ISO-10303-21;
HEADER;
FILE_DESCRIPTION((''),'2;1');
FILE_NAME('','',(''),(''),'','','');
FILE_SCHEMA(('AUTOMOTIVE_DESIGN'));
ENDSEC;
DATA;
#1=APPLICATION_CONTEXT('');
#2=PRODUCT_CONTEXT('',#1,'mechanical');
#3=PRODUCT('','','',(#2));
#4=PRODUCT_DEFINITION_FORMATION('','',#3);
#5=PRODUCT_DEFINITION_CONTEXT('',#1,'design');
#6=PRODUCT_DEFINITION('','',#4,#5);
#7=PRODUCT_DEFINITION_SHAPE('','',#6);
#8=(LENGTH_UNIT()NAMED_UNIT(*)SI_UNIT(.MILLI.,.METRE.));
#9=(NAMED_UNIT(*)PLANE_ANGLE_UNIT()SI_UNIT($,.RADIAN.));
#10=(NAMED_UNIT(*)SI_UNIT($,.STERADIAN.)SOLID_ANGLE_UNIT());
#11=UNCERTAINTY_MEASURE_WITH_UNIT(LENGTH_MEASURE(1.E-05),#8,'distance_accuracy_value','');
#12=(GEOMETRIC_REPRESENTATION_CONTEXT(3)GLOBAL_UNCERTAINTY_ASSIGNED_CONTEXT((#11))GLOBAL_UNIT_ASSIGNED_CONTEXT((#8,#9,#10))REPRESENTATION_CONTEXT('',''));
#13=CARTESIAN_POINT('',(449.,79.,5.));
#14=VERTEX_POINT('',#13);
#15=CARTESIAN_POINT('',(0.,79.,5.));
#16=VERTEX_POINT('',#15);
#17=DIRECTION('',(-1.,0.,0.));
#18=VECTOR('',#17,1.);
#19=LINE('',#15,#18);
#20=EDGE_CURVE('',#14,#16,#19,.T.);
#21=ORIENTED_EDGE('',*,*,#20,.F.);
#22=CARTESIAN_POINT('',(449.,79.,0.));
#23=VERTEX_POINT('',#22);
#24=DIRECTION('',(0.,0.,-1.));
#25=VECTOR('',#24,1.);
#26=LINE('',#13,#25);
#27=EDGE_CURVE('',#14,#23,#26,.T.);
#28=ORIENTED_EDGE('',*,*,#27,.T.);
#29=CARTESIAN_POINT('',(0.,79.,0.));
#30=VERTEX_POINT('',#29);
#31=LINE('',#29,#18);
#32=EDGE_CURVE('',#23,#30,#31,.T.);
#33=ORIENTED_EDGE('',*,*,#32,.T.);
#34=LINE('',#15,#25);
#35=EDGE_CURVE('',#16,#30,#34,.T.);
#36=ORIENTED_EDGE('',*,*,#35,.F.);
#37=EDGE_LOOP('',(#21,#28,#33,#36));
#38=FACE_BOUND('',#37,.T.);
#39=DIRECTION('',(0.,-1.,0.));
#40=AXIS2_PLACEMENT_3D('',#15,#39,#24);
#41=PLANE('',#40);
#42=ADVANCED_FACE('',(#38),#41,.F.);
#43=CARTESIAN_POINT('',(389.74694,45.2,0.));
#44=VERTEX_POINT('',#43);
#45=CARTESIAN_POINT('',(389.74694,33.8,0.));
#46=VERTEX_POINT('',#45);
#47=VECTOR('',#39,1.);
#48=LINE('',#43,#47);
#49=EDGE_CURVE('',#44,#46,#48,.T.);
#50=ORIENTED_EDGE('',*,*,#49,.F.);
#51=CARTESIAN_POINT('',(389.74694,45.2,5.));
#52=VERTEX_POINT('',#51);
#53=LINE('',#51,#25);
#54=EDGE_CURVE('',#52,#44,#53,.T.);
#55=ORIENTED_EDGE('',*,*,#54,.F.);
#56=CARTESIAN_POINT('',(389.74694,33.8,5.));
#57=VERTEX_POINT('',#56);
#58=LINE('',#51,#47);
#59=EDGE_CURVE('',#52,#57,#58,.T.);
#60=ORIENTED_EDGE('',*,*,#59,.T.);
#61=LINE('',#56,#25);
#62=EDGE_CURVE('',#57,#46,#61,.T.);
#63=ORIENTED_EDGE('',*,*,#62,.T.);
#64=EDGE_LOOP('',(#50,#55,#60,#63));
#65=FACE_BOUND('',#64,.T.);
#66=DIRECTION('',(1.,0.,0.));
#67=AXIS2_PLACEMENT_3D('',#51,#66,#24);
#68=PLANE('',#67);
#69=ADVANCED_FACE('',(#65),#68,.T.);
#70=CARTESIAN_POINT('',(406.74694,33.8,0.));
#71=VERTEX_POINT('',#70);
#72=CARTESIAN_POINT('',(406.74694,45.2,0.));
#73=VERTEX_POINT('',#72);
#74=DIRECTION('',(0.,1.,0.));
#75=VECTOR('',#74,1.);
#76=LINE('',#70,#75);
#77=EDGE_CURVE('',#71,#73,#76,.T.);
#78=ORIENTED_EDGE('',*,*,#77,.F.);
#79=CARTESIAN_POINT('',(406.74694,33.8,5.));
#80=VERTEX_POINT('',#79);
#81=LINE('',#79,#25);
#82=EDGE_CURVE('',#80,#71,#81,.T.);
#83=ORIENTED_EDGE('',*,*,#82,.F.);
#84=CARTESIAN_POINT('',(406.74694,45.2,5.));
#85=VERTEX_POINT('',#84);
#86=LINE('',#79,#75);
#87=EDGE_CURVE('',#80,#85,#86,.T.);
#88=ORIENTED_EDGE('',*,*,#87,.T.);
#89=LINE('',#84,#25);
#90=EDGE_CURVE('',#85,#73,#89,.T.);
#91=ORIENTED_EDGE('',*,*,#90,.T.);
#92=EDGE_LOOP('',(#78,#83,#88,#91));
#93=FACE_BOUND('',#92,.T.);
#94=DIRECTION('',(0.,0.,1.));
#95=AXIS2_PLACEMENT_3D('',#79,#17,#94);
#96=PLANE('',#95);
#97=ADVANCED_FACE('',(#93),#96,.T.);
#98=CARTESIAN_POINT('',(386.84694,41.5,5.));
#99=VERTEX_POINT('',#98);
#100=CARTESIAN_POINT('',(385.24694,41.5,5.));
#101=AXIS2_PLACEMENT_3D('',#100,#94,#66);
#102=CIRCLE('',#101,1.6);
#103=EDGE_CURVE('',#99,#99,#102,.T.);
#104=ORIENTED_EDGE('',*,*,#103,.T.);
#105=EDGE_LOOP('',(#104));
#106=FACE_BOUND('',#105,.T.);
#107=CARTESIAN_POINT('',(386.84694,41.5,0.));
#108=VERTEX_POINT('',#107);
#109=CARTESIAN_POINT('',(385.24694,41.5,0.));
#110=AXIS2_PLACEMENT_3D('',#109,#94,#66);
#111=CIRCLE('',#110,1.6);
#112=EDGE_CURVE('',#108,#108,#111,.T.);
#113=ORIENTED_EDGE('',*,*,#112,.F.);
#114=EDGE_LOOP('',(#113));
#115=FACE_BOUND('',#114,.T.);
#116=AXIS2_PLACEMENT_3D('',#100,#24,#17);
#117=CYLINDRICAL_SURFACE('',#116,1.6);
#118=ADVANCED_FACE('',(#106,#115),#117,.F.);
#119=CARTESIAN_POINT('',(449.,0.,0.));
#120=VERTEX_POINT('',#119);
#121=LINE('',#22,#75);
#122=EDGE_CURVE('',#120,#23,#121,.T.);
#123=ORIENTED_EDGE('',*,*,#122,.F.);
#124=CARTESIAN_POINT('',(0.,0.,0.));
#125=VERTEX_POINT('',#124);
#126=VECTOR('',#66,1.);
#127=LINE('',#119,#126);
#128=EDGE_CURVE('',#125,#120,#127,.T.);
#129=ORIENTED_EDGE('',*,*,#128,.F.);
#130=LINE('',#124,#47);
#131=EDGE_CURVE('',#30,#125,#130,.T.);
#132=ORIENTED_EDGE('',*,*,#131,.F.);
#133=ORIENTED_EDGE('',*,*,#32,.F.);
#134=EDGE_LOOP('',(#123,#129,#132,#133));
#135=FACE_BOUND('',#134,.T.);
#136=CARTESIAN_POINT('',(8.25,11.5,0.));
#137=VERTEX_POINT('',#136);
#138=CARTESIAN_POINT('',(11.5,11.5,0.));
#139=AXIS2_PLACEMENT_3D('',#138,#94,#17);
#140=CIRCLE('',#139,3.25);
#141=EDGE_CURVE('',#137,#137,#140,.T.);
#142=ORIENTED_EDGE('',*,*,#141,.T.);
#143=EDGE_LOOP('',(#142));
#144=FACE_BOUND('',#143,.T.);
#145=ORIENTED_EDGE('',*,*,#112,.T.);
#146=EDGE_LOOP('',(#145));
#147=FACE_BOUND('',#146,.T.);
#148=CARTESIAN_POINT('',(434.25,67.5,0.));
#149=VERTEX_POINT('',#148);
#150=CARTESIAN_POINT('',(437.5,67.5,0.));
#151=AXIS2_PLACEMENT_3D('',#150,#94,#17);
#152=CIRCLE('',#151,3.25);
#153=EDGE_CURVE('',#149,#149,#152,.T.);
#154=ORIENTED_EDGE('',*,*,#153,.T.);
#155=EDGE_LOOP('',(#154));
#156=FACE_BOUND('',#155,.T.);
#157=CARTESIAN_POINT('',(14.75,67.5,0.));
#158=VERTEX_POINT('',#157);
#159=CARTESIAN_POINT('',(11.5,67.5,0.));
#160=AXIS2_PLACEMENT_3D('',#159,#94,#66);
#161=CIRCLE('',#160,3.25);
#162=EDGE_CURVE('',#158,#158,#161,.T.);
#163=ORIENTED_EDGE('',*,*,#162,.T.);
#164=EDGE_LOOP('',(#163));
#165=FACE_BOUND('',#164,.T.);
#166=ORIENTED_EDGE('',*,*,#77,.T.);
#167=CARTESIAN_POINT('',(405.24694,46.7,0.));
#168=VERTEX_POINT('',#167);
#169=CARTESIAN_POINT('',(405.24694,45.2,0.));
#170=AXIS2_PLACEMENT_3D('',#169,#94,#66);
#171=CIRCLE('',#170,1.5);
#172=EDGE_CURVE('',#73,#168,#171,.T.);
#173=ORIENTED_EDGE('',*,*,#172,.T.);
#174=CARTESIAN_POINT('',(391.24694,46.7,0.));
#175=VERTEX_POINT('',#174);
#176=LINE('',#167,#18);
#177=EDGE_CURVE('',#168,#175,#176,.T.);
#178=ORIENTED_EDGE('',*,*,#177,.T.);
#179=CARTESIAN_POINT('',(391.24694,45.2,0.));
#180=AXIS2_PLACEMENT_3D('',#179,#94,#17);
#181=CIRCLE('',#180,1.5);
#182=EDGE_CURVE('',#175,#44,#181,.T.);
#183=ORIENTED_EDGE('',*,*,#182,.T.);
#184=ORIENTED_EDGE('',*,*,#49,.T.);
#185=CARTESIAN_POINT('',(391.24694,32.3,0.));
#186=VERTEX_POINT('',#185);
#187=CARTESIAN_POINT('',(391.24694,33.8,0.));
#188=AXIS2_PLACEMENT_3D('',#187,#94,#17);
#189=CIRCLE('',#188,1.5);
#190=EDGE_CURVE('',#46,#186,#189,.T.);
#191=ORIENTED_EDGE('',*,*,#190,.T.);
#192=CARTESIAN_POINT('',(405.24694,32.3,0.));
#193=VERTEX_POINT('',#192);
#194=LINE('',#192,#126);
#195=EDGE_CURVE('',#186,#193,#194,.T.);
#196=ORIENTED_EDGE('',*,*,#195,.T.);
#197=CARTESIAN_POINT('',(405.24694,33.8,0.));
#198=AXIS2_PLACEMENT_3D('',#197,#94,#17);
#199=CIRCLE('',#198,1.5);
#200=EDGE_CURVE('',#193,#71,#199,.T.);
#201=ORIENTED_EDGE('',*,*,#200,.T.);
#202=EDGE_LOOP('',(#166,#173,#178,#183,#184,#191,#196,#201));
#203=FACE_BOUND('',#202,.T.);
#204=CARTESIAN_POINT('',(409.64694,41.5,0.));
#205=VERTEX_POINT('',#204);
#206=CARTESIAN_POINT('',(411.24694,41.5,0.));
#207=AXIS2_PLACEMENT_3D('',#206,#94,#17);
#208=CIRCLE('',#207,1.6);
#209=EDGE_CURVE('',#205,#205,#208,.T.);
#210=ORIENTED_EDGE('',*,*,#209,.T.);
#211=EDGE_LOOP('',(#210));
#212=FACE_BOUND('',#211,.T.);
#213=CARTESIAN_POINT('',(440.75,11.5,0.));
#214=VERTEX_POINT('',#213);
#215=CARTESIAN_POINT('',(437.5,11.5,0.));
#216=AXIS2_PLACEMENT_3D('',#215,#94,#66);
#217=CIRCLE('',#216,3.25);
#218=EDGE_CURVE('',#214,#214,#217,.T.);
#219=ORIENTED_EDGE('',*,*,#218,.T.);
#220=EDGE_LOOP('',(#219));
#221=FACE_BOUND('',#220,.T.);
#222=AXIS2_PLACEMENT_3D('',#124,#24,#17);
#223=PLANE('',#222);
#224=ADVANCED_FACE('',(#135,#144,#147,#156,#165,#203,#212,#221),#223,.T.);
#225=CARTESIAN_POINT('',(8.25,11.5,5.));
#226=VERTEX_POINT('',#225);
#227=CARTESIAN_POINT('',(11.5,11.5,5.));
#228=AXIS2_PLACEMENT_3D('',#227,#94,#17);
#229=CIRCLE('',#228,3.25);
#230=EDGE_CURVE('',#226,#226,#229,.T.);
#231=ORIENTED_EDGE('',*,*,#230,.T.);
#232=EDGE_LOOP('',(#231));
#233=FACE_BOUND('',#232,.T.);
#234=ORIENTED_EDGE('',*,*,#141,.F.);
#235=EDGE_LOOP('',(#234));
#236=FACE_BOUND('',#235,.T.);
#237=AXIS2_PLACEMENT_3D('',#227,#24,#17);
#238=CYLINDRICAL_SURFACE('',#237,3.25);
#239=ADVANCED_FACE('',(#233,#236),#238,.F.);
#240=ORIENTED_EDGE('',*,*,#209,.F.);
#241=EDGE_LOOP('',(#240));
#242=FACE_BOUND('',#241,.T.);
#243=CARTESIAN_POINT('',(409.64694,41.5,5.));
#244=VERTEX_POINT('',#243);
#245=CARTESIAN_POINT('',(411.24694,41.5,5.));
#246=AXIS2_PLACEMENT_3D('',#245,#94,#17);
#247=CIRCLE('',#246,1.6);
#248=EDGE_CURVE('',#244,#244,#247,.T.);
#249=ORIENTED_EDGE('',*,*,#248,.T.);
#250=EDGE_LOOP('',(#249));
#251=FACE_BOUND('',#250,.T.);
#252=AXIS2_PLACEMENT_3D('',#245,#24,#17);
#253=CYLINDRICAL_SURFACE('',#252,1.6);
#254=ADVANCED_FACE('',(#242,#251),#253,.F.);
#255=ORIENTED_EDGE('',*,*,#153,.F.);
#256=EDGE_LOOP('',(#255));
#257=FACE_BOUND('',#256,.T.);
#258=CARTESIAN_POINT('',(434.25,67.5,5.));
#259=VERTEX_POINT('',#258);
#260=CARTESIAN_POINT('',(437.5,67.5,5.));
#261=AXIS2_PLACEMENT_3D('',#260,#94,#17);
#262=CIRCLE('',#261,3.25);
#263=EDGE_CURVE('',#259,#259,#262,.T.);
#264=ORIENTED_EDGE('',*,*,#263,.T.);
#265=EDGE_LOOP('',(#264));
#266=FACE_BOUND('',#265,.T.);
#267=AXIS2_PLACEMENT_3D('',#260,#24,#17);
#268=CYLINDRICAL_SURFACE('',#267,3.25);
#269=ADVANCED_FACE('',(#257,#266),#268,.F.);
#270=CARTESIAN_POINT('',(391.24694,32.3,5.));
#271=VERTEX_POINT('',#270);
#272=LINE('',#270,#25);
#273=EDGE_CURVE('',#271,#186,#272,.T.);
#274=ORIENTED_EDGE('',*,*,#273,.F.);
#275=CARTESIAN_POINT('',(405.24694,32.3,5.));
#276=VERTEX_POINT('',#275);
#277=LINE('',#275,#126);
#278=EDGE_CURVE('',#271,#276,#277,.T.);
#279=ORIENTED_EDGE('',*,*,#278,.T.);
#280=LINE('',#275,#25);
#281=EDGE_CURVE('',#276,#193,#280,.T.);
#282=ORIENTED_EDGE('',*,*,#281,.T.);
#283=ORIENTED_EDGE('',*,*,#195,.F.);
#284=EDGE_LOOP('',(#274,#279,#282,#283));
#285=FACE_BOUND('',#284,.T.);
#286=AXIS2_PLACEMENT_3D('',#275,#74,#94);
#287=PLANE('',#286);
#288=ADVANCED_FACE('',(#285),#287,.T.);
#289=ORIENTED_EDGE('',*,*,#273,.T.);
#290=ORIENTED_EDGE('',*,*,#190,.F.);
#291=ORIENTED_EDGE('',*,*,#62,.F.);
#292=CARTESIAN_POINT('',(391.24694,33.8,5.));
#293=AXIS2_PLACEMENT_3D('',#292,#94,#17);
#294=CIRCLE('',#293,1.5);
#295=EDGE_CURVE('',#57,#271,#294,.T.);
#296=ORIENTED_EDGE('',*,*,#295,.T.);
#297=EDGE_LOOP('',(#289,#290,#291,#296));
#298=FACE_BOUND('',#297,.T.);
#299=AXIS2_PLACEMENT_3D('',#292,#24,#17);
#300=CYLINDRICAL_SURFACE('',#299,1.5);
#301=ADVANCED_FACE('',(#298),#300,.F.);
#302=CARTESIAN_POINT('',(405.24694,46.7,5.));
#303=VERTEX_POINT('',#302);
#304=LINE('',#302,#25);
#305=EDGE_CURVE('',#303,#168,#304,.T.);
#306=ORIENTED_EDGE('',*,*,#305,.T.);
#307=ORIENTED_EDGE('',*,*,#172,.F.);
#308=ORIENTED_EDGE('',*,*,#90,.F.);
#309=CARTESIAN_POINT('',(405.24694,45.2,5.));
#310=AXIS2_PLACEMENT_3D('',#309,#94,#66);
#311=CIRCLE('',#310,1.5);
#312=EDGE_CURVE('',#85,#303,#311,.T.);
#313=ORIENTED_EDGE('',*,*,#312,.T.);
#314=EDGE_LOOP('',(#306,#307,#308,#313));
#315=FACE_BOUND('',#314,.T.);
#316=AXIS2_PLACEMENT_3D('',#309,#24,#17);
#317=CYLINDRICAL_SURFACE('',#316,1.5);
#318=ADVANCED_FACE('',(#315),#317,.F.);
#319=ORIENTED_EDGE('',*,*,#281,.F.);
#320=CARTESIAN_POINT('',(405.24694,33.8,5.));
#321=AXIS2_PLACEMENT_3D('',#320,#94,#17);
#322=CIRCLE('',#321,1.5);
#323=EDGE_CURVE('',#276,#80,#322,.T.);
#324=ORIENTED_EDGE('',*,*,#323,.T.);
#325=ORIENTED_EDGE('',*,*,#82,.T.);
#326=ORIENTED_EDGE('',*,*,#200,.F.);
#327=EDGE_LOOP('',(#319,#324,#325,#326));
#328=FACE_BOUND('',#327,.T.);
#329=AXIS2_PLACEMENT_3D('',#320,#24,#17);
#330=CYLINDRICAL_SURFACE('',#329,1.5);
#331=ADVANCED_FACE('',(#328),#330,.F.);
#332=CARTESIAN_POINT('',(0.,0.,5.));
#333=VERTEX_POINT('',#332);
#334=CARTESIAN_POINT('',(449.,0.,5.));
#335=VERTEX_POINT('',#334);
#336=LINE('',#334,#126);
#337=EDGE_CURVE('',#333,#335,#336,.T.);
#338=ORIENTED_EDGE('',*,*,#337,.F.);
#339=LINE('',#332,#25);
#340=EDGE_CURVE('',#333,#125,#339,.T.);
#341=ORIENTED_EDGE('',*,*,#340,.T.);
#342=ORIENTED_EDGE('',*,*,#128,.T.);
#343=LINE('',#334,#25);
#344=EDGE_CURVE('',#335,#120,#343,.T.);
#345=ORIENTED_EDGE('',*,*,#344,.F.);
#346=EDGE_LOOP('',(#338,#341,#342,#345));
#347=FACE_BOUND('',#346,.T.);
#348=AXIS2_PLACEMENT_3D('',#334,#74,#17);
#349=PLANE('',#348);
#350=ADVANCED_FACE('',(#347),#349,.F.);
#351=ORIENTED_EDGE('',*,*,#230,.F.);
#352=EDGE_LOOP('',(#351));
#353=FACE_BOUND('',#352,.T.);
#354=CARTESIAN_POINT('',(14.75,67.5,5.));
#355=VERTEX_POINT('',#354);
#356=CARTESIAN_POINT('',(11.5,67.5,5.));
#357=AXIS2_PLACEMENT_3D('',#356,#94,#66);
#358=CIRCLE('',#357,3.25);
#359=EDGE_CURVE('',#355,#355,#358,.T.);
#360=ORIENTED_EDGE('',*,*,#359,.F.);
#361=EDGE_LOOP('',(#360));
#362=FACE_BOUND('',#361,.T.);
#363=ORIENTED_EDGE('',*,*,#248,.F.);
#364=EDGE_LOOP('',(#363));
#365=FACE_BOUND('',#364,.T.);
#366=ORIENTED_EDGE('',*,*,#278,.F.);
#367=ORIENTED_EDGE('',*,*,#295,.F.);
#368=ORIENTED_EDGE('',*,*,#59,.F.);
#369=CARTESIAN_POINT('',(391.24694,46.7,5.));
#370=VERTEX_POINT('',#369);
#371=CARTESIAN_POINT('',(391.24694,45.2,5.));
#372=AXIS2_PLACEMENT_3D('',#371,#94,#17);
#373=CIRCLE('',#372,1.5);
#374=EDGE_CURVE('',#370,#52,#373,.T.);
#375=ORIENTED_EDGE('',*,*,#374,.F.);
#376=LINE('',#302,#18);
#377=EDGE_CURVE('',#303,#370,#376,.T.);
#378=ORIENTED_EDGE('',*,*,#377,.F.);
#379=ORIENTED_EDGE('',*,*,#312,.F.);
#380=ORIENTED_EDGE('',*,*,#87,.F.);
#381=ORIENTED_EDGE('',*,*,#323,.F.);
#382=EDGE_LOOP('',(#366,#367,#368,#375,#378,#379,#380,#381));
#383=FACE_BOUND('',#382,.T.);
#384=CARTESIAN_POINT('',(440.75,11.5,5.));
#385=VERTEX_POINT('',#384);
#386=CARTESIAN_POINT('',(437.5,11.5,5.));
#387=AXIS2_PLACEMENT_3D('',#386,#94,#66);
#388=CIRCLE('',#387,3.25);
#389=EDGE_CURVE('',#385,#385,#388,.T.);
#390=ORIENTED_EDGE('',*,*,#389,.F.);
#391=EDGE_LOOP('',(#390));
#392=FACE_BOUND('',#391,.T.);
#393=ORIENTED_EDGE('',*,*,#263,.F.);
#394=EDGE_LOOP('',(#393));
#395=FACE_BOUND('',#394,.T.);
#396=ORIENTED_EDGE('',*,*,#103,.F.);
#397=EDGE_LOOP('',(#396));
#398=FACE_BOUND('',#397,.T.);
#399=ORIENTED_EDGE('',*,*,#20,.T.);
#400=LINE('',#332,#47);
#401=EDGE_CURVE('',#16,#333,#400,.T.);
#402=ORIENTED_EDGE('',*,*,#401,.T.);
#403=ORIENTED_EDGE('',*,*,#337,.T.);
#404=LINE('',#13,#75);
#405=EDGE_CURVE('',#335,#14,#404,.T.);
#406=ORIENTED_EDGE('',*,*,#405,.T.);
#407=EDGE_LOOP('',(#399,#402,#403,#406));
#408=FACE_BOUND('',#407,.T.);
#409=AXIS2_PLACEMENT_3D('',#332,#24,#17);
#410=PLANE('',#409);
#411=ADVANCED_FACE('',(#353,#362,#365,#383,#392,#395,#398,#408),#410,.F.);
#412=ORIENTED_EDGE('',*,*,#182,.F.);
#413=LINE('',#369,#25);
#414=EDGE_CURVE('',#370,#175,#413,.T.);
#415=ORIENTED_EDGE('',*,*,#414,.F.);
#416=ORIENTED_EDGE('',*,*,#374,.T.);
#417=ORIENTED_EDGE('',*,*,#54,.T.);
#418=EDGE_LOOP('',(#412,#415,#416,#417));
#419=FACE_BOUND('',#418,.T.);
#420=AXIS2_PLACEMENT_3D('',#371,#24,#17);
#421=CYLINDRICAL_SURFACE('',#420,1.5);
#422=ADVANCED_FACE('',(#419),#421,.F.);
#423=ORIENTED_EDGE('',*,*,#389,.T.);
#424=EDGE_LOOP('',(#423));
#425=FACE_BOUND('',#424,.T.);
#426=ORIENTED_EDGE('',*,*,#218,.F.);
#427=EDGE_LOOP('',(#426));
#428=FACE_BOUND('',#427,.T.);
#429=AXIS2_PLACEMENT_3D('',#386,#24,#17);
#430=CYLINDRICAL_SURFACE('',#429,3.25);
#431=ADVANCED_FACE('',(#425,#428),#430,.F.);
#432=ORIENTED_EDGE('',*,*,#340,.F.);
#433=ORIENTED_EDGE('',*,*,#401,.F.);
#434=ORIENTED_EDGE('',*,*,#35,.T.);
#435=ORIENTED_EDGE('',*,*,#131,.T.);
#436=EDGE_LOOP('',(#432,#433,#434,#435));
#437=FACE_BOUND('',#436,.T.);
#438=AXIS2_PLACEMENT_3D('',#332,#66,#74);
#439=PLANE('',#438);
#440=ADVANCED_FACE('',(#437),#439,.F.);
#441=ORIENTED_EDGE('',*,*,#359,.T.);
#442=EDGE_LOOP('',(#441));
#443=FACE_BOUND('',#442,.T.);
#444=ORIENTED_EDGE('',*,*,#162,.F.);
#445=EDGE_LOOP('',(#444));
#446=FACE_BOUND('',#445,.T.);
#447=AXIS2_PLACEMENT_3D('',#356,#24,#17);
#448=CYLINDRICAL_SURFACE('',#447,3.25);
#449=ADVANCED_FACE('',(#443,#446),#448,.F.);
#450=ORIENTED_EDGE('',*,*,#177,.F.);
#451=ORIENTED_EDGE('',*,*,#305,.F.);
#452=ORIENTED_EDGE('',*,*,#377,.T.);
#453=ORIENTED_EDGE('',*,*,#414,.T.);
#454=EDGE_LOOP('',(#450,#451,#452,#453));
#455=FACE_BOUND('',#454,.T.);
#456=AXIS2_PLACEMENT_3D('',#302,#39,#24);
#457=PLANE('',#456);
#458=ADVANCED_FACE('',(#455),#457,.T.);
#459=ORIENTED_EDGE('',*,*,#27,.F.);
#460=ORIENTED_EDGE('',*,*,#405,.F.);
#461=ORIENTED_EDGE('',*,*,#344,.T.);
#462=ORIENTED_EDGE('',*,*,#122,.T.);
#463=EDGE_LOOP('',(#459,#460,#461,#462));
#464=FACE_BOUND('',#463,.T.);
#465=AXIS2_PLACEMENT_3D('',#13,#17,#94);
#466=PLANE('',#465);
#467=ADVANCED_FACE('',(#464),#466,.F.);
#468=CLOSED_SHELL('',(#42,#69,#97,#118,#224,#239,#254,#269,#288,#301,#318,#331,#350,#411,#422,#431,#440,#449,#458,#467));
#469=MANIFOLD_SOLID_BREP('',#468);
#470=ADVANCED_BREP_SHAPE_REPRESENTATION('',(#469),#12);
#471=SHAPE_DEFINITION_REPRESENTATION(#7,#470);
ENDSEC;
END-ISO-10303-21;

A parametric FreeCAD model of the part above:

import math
import FreeCAD as App
import Part
import Sketcher
from FreeCAD import Vector
Q = App.Units.Quantity


def add_polygon(sketch, points):
    """Adds a closed chain of lines whose ends are joined by coincident constraints."""
    first, n = sketch.GeometryCount, len(points)
    for a, b in zip(points, points[1:] + points[:1]):
        sketch.addGeometry(Part.LineSegment(App.Vector(*a, 0), App.Vector(*b, 0)), False)
    for i in range(n):
        sketch.addConstraint(Sketcher.Constraint("Coincident", first + i, 2, first + (i + 1) % n, 1))

doc = App.newDocument("Part")
body = doc.addObject("PartDesign::Body", "Body")

# Sketch on XY plane
sketch1 = doc.addObject("Sketcher::SketchObject", "Sketch")
body.addObject(sketch1)
sketch1.AttachmentSupport = (doc.XY_Plane, [""])
sketch1.MapMode = "FlatFace"
add_polygon(sketch1, [(0, 79), (0, 0), (449, 0), (449, 79)])  # lines 0-3
sketch1.addGeometry(Part.Circle(Vector(11.5, 11.5, 0), Vector(0, 0, 1), 3.2), False)  # 4
sketch1.addGeometry(Part.Circle(Vector(437.5, 11.5, 0), Vector(0, 0, 1), 3.2), False)  # 5
sketch1.addGeometry(Part.Circle(Vector(11.5, 67.5, 0), Vector(0, 0, 1), 3.2), False)  # 6
sketch1.addGeometry(Part.Circle(Vector(385.2, 41.5, 0), Vector(0, 0, 1), 1.6), False)  # 7
sketch1.addGeometry(Part.LineSegment(Vector(406.7, 45.2, 0), Vector(406.7, 33.8, 0)), False)  # 8
sketch1.addGeometry(Part.ArcOfCircle(Part.Circle(Vector(405.2, 33.8, 0), Vector(0, 0, 1), 1.5), math.radians(-90), math.radians(0)), False)  # 9
sketch1.addGeometry(Part.LineSegment(Vector(405.2, 32.3, 0), Vector(391.2, 32.3, 0)), False)  # 10
sketch1.addGeometry(Part.ArcOfCircle(Part.Circle(Vector(391.2, 33.8, 0), Vector(0, 0, 1), 1.5), math.radians(180), math.radians(270)), False)  # 11
sketch1.addGeometry(Part.LineSegment(Vector(389.7, 33.8, 0), Vector(389.7, 45.2, 0)), False)  # 12
sketch1.addGeometry(Part.ArcOfCircle(Part.Circle(Vector(391.2, 45.2, 0), Vector(0, 0, 1), 1.5), math.radians(90), math.radians(180)), False)  # 13
sketch1.addGeometry(Part.LineSegment(Vector(391.2, 46.7, 0), Vector(405.2, 46.7, 0)), False)  # 14
sketch1.addGeometry(Part.ArcOfCircle(Part.Circle(Vector(405.2, 45.2, 0), Vector(0, 0, 1), 1.5), math.radians(0), math.radians(90)), False)  # 15
sketch1.addGeometry(Part.Circle(Vector(411.2, 41.5, 0), Vector(0, 0, 1), 1.6), False)  # 16
sketch1.addGeometry(Part.Circle(Vector(437.5, 67.5, 0), Vector(0, 0, 1), 3.2), False)  # 17
sketch1.addConstraint([
    Sketcher.Constraint("Tangent", 8, 2, 9, 2),
    Sketcher.Constraint("Tangent", 9, 1, 10, 1),
    Sketcher.Constraint("Tangent", 10, 2, 11, 2),
    Sketcher.Constraint("Tangent", 11, 1, 12, 1),
    Sketcher.Constraint("Tangent", 12, 2, 13, 2),
    Sketcher.Constraint("Tangent", 13, 1, 14, 1),
    Sketcher.Constraint("Tangent", 14, 2, 15, 2),
    Sketcher.Constraint("Tangent", 15, 1, 8, 1),
    Sketcher.Constraint("Vertical", 0),
    Sketcher.Constraint("Horizontal", 1),
    Sketcher.Constraint("Vertical", 2),
    Sketcher.Constraint("Horizontal", 3),
    Sketcher.Constraint("Vertical", 8),
    Sketcher.Constraint("Horizontal", 10),
    Sketcher.Constraint("Vertical", 12),
    Sketcher.Constraint("Horizontal", 14),
    Sketcher.Constraint("Coincident", 0, 2, -1, 1),
    Sketcher.Constraint("Equal", 4, 5),
    Sketcher.Constraint("Equal", 5, 6),
    Sketcher.Constraint("Equal", 9, 11),
    Sketcher.Constraint("Equal", 11, 13),
    Sketcher.Constraint("Equal", 13, 15),
    Sketcher.Constraint("Equal", 7, 16),
    Sketcher.Constraint("Equal", 6, 17),
    Sketcher.Constraint("Horizontal", 4, 3, 5, 3),
    Sketcher.Constraint("Horizontal", 7, 3, 16, 3),
    Sketcher.Constraint("Horizontal", 6, 3, 17, 3),
    Sketcher.Constraint("Vertical", 4, 3, 6, 3),
    Sketcher.Constraint("Vertical", 5, 3, 17, 3),
    Sketcher.Constraint("Diameter", 4, Q("6.5 mm")),
    Sketcher.Constraint("Diameter", 7, Q("3.2 mm")),
    Sketcher.Constraint("Radius", 9, Q("1.5 mm")),
    Sketcher.Constraint("DistanceX", 1, 1, 1, 2, Q("449 mm")),
    Sketcher.Constraint("DistanceX", 10, 2, 10, 1, Q("14 mm")),
    Sketcher.Constraint("DistanceY", 0, 2, 0, 1, Q("79 mm")),
    Sketcher.Constraint("DistanceY", 8, 2, 8, 1, Q("11.4 mm")),
    Sketcher.Constraint("DistanceX", 4, 3, 5, 3, Q("426 mm")),
    Sketcher.Constraint("DistanceY", 4, 3, 6, 3, Q("56 mm")),
    Sketcher.Constraint("DistanceY", 5, 3, 7, 3, Q("30 mm")),
    Sketcher.Constraint("DistanceX", 7, 3, 9, 3, Q("20 mm")),
    Sketcher.Constraint("DistanceX", 15, 3, 16, 3, Q("6 mm")),
    Sketcher.Constraint("DistanceX", -1, 1, 4, 3, Q("11.5 mm")),
    Sketcher.Constraint("DistanceY", -1, 1, 4, 3, Q("11.5 mm")),
    Sketcher.Constraint("DistanceY", -1, 1, 9, 3, Q("33.8 mm")),
    Sketcher.Constraint("DistanceX", -1, 1, 7, 3, Q("385.24694 mm")),
])
pad1 = doc.addObject("PartDesign::Pad", "Pad")
body.addObject(pad1)
pad1.Profile = sketch1
pad1.Length = 5

doc.recompute()
